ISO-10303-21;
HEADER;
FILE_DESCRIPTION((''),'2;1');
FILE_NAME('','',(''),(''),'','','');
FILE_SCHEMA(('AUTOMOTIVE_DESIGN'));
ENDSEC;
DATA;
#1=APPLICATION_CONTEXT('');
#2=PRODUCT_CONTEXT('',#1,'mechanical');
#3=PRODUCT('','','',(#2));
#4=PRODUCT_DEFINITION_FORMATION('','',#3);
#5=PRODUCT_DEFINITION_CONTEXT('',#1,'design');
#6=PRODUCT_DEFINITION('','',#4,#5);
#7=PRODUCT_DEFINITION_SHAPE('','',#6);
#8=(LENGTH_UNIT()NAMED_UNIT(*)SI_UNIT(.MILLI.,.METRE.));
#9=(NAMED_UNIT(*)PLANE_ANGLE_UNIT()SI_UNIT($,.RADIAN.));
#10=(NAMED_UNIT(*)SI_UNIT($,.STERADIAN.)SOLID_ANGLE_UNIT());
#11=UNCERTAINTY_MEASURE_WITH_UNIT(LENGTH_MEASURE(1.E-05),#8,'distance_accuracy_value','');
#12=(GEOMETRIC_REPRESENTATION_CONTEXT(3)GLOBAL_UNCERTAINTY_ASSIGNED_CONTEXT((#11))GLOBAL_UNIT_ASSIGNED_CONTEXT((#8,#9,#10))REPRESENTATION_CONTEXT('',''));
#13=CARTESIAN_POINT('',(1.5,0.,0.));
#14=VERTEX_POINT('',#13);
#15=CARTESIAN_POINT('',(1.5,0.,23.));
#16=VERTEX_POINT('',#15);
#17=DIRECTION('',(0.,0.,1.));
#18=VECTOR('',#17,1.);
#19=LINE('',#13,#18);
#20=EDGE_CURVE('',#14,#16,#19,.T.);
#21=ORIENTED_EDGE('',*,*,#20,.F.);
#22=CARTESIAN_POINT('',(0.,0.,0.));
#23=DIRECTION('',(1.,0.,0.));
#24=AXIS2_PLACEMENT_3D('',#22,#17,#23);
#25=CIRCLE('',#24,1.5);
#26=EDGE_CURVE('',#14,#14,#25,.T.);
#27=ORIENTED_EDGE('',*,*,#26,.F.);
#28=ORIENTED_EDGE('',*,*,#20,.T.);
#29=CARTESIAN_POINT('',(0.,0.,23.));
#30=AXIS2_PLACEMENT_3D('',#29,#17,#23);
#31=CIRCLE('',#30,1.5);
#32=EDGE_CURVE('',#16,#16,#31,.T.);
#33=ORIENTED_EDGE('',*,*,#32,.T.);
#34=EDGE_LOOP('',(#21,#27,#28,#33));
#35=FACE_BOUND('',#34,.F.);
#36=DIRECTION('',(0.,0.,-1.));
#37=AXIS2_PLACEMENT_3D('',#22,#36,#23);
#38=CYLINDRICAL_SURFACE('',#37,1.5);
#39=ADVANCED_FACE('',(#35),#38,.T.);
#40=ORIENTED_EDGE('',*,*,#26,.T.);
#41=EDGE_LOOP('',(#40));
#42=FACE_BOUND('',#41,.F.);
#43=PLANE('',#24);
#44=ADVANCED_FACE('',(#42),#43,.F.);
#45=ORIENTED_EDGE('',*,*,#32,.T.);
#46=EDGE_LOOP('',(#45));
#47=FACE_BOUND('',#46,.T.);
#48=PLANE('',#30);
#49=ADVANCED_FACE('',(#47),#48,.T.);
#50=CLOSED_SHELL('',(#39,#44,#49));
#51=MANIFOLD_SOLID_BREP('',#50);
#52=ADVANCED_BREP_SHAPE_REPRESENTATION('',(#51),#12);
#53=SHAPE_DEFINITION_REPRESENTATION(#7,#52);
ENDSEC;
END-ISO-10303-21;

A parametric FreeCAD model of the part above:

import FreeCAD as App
import Part
import Sketcher
from FreeCAD import Vector
Q = App.Units.Quantity

doc = App.newDocument("Part")
body = doc.addObject("PartDesign::Body", "Body")

# Sketch on XY plane
sketch1 = body.newObject("Sketcher::SketchObject", "Sketch")
sketch1.AttachmentSupport = (doc.getObject("XY_Plane"), [""])
sketch1.MapMode = "FlatFace"
sketch1.addGeometry(Part.Circle(Vector(0, 0, 0), Vector(0, 0, 1), 1.5), False)
sketch1.addConstraint([
    Sketcher.Constraint("Coincident", 0, 3, -1, 1),
    Sketcher.Constraint("Diameter", 0, Q("3 mm")),
])
pad1 = body.newObject("PartDesign::Pad", "Pad")
pad1.Profile = sketch1
pad1.Length = 23

doc.recompute()
